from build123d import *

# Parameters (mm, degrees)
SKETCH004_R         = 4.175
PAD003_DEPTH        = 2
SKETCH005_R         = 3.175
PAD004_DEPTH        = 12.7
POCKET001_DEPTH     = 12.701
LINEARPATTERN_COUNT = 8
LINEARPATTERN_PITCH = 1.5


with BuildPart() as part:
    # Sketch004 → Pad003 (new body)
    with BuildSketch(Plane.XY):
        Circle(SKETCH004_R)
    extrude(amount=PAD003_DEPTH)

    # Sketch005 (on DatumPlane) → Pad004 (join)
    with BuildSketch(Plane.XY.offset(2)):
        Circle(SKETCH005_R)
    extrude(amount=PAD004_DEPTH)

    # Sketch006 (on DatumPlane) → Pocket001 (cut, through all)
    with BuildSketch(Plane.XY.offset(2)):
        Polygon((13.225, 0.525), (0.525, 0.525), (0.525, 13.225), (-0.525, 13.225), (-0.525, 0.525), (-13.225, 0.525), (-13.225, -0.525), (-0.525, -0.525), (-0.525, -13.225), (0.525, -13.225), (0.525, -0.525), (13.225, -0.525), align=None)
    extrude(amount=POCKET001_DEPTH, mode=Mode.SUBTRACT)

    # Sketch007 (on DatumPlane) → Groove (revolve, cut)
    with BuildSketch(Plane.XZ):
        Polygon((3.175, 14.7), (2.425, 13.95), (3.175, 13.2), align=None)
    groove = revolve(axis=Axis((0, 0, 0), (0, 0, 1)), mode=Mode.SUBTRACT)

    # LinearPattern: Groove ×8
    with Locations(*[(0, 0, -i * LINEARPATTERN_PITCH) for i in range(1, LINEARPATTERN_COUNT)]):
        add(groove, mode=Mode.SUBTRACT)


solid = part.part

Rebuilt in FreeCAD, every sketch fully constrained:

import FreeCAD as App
import Part
import Sketcher
from FreeCAD import Vector
Q = App.Units.Quantity

doc = App.newDocument("Part")
body = doc.addObject("PartDesign::Body", "Body")

# Sketch on XY plane
sketch1 = body.newObject("Sketcher::SketchObject", "Sketch")
sketch1.AttachmentSupport = (doc.getObject("XY_Plane"), [""])
sketch1.MapMode = "FlatFace"
sketch1.addGeometry(Part.Circle(Vector(0, 0, 0), Vector(0, 0, 1), 4.2), False)
sketch1.addConstraint(Sketcher.Constraint("Coincident", 0, 3, -1, 1))
sketch1.addConstraint(Sketcher.Constraint("Diameter", 0, Q("8.35 mm")))
pad1 = body.newObject("PartDesign::Pad", "Pad")
pad1.Profile = sketch1
pad1.Length = 2

# Sketch on XY plane
sketch2 = body.newObject("Sketcher::SketchObject", "Sketch001")
sketch2.AttachmentSupport = (doc.getObject("XY_Plane"), [""])
sketch2.MapMode = "FlatFace"
sketch2.AttachmentOffset = App.Placement(Vector(0, 0, 2), App.Rotation())
sketch2.addGeometry(Part.Circle(Vector(0, 0, 0), Vector(0, 0, 1), 3.2), False)
sketch2.addConstraint(Sketcher.Constraint("Coincident", 0, 3, -1, 1))
sketch2.addConstraint(Sketcher.Constraint("Diameter", 0, Q("6.35 mm")))
pad2 = body.newObject("PartDesign::Pad", "Pad001")
pad2.Profile = sketch2
pad2.Length = 12.7

# Sketch on XY plane
sketch3 = body.newObject("Sketcher::SketchObject", "Sketch002")
sketch3.AttachmentSupport = (doc.getObject("XY_Plane"), [""])
sketch3.MapMode = "FlatFace"
sketch3.AttachmentOffset = App.Placement(Vector(0, 0, 2), App.Rotation())
sketch3.addGeometry(Part.LineSegment(Vector(13.2, 0.5, 0), Vector(0.5, 0.5, 0)), False)
sketch3.addGeometry(Part.LineSegment(Vector(0.5, 0.5, 0), Vector(0.5, 13.2, 0)), False)
sketch3.addGeometry(Part.LineSegment(Vector(0.5, 13.2, 0), Vector(-0.5, 13.2, 0)), False)
sketch3.addGeometry(Part.LineSegment(Vector(-0.5, 13.2, 0), Vector(-0.5, 0.5, 0)), False)
sketch3.addGeometry(Part.LineSegment(Vector(-0.5, 0.5, 0), Vector(-13.2, 0.5, 0)), False)
sketch3.addGeometry(Part.LineSegment(Vector(-13.2, 0.5, 0), Vector(-13.2, -0.5, 0)), False)
sketch3.addGeometry(Part.LineSegment(Vector(-13.2, -0.5, 0), Vector(-0.5, -0.5, 0)), False)
sketch3.addGeometry(Part.LineSegment(Vector(-0.5, -0.5, 0), Vector(-0.5, -13.2, 0)), False)
sketch3.addGeometry(Part.LineSegment(Vector(-0.5, -13.2, 0), Vector(0.5, -13.2, 0)), False)
sketch3.addGeometry(Part.LineSegment(Vector(0.5, -13.2, 0), Vector(0.5, -0.5, 0)), False)
sketch3.addGeometry(Part.LineSegment(Vector(0.5, -0.5, 0), Vector(13.2, -0.5, 0)), False)
sketch3.addGeometry(Part.LineSegment(Vector(13.2, -0.5, 0), Vector(13.2, 0.5, 0)), False)
sketch3.addConstraint(Sketcher.Constraint("Coincident", 0, 2, 1, 1))
sketch3.addConstraint(Sketcher.Constraint("Coincident", 1, 2, 2, 1))
sketch3.addConstraint(Sketcher.Constraint("Coincident", 2, 2, 3, 1))
sketch3.addConstraint(Sketcher.Constraint("Coincident", 3, 2, 4, 1))
sketch3.addConstraint(Sketcher.Constraint("Coincident", 4, 2, 5, 1))
sketch3.addConstraint(Sketcher.Constraint("Coincident", 5, 2, 6, 1))
sketch3.addConstraint(Sketcher.Constraint("Coincident", 6, 2, 7, 1))
sketch3.addConstraint(Sketcher.Constraint("Coincident", 7, 2, 8, 1))
sketch3.addConstraint(Sketcher.Constraint("Coincident", 8, 2, 9, 1))
sketch3.addConstraint(Sketcher.Constraint("Coincident", 9, 2, 10, 1))
sketch3.addConstraint(Sketcher.Constraint("Coincident", 10, 2, 11, 1))
sketch3.addConstraint(Sketcher.Constraint("Coincident", 11, 2, 0, 1))
sketch3.addConstraint(Sketcher.Constraint("Horizontal", 0))
sketch3.addConstraint(Sketcher.Constraint("Vertical", 1))
sketch3.addConstraint(Sketcher.Constraint("Horizontal", 2))
sketch3.addConstraint(Sketcher.Constraint("Vertical", 3))
sketch3.addConstraint(Sketcher.Constraint("Horizontal", 4))
sketch3.addConstraint(Sketcher.Constraint("Vertical", 5))
sketch3.addConstraint(Sketcher.Constraint("Horizontal", 6))
sketch3.addConstraint(Sketcher.Constraint("Vertical", 7))
sketch3.addConstraint(Sketcher.Constraint("Horizontal", 8))
sketch3.addConstraint(Sketcher.Constraint("Vertical", 9))
sketch3.addConstraint(Sketcher.Constraint("Horizontal", 10))
sketch3.addConstraint(Sketcher.Constraint("Vertical", 11))
sketch3.addConstraint(Sketcher.Constraint("Symmetric", 0, 2, 6, 2, -1, 1))
sketch3.addConstraint(Sketcher.Constraint("Symmetric", 2, 2, 8, 2, -1, 1))
sketch3.addConstraint(Sketcher.Constraint("Symmetric", 4, 2, 10, 2, -1, 1))
sketch3.addConstraint(Sketcher.Constraint("Symmetric", 0, 2, 3, 2, -2))
sketch3.addConstraint(Sketcher.Constraint("Equal", 10, 1))
sketch3.addConstraint(Sketcher.Constraint("Equal", 8, 5))
sketch3.addConstraint(Sketcher.Constraint("DistanceX", 0, 2, 0, 1, Q("12.7 mm")))
sketch3.addConstraint(Sketcher.Constraint("DistanceX", 2, 2, 2, 1, Q("1.05 mm")))
pocket1 = body.newObject("PartDesign::Pocket", "Pocket")
pocket1.Profile = sketch3
pocket1.Type = "ThroughAll"
pocket1.Reversed = True

# Sketch on XZ plane
sketch4 = body.newObject("Sketcher::SketchObject", "Sketch003")
sketch4.AttachmentSupport = (doc.getObject("XZ_Plane"), [""])
sketch4.MapMode = "FlatFace"
sketch4.addGeometry(Part.LineSegment(Vector(3.2, 14.7, 0), Vector(2.4, 13.9, 0)), False)
sketch4.addGeometry(Part.LineSegment(Vector(2.4, 13.9, 0), Vector(3.2, 13.2, 0)), False)
sketch4.addGeometry(Part.LineSegment(Vector(3.2, 13.2, 0), Vector(3.2, 14.7, 0)), False)
sketch4.addConstraint(Sketcher.Constraint("Coincident", 0, 2, 1, 1))
sketch4.addConstraint(Sketcher.Constraint("Coincident", 1, 2, 2, 1))
sketch4.addConstraint(Sketcher.Constraint("Coincident", 2, 2, 0, 1))
sketch4.addConstraint(Sketcher.Constraint("Vertical", 2))
sketch4.addConstraint(Sketcher.Constraint("Perpendicular", 0, 1))
sketch4.addConstraint(Sketcher.Constraint("Equal", 0, 1))
sketch4.addConstraint(Sketcher.Constraint("DistanceY", 2, 1, 2, 2, Q("1.5 mm")))
sketch4.addConstraint(Sketcher.Constraint("DistanceY", -1, 1, 1, 2, Q("13.2 mm")))
sketch4.addConstraint(Sketcher.Constraint("DistanceX", -1, 1, 0, 2, Q("2.425 mm")))
groove = body.newObject("PartDesign::Groove", "Groove")
groove.Profile = sketch4
groove.ReferenceAxis = (sketch4, ["V_Axis"])
groove.Angle = 360
doc.recompute()

linearpattern = body.newObject("PartDesign::LinearPattern", "LinearPattern")
linearpattern.Originals = [groove]
linearpattern.Direction = (doc.getObject("Z_Axis"), [""])
linearpattern.Mode = "offset"
linearpattern.Offset = 1.5
linearpattern.Occurrences = 8
linearpattern.Reversed = True
body.Tip = linearpattern

doc.recompute()
